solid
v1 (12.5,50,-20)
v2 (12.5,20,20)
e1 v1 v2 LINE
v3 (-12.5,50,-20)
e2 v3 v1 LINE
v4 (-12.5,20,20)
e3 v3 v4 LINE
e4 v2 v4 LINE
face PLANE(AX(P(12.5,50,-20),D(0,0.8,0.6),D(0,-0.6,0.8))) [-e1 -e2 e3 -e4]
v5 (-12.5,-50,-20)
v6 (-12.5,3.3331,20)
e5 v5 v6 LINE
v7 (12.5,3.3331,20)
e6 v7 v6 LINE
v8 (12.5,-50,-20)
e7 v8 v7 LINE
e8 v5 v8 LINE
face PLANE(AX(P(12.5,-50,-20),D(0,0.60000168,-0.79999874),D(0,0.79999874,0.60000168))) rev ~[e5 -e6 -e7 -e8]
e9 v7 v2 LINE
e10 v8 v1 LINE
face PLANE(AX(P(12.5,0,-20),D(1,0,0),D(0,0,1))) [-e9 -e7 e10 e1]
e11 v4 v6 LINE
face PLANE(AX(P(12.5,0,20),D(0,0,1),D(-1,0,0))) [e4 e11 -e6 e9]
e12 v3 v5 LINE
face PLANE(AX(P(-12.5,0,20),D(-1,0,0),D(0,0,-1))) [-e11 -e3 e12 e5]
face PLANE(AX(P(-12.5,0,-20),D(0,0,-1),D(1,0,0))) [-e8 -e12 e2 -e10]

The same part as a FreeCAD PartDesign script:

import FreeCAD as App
import Part
import Sketcher
from FreeCAD import Vector
Q = App.Units.Quantity

doc = App.newDocument("Part")
body = doc.addObject("PartDesign::Body", "Body")

# Sketch on XZ plane
sketch1 = body.newObject("Sketcher::SketchObject", "Sketch")
sketch1.AttachmentSupport = (doc.getObject("XZ_Plane"), [""])
sketch1.MapMode = "FlatFace"
sketch1.addGeometry([
    Part.LineSegment(Vector(-12.5, 20, 0), Vector(12.5, 20, 0)),
    Part.LineSegment(Vector(12.5, 20, 0), Vector(12.5, -20, 0)),
    Part.LineSegment(Vector(12.5, -20, 0), Vector(-12.5, -20, 0)),
    Part.LineSegment(Vector(-12.5, -20, 0), Vector(-12.5, 20, 0)),
], False)
sketch1.addConstraint([
    Sketcher.Constraint("Coincident", 0, 2, 1, 1),
    Sketcher.Constraint("Coincident", 1, 2, 2, 1),
    Sketcher.Constraint("Coincident", 2, 2, 3, 1),
    Sketcher.Constraint("Coincident", 3, 2, 0, 1),
    Sketcher.Constraint("Horizontal", 0),
    Sketcher.Constraint("Vertical", 1),
    Sketcher.Constraint("Horizontal", 2),
    Sketcher.Constraint("Vertical", 3),
    Sketcher.Constraint("Symmetric", 0, 2, 2, 2, -1, 1),
    Sketcher.Constraint("DistanceX", 0, 1, 0, 2, Q("25 mm")),
    Sketcher.Constraint("DistanceY", 1, 2, 1, 1, Q("40 mm")),
])
pad1 = body.newObject("PartDesign::Pad", "Pad")
pad1.Profile = sketch1
pad1.Length = 100
pad1.Midplane = True

# Sketch on YZ plane
sketch2 = body.newObject("Sketcher::SketchObject", "Sketch001")
sketch2.AttachmentSupport = (doc.getObject("YZ_Plane"), [""])
sketch2.MapMode = "FlatFace"
sketch2.AttachmentOffset = App.Placement(Vector(0, 0, 12.5), App.Rotation())
sketch2.addGeometry([
    Part.LineSegment(Vector(20, 20, 0), Vector(50, -20, 0)),
    Part.LineSegment(Vector(50, -20, 0), Vector(50, 20, 0)),
    Part.LineSegment(Vector(50, 20, 0), Vector(20, 20, 0)),
], False)
sketch2.addConstraint([
    Sketcher.Constraint("Coincident", 0, 2, 1, 1),
    Sketcher.Constraint("Coincident", 1, 2, 2, 1),
    Sketcher.Constraint("Coincident", 2, 2, 0, 1),
    Sketcher.Constraint("Vertical", 1),
    Sketcher.Constraint("Horizontal", 2),
    Sketcher.Constraint("Distance", 0, Q("50 mm")),
    Sketcher.Constraint("DistanceX", -1, 1, 0, 2, Q("50 mm")),
    Sketcher.Constraint("DistanceX", 2, 2, 2, 1, Q("30 mm")),
    Sketcher.Constraint("DistanceY", 0, 2, -1, 1, Q("20 mm")),
])
pocket1 = body.newObject("PartDesign::Pocket", "Pocket")
pocket1.Profile = sketch2
pocket1.Length = 25

# Sketch on YZ plane
sketch3 = body.newObject("Sketcher::SketchObject", "Sketch002")
sketch3.AttachmentSupport = (doc.getObject("YZ_Plane"), [""])
sketch3.MapMode = "FlatFace"
sketch3.AttachmentOffset = App.Placement(Vector(0, 0, 12.5), App.Rotation())
sketch3.addGeometry([
    Part.LineSegment(Vector(3.3331, 20, 0), Vector(-50, 20, 0)),
    Part.LineSegment(Vector(-50, 20, 0), Vector(-50, -20, 0)),
    Part.LineSegment(Vector(-50, -20, 0), Vector(3.3331, 20, 0)),
], False)
sketch3.addConstraint([
    Sketcher.Constraint("Coincident", 0, 2, 1, 1),
    Sketcher.Constraint("Coincident", 1, 2, 2, 1),
    Sketcher.Constraint("Coincident", 2, 2, 0, 1),
    Sketcher.Constraint("Horizontal", 0),
    Sketcher.Constraint("Vertical", 1),
    Sketcher.Constraint("Angle", 2, Q("36.87 deg")),
    Sketcher.Constraint("DistanceY", 1, 2, 1, 1, Q("40 mm")),
    Sketcher.Constraint("DistanceX", 0, 2, -1, 1, Q("50 mm")),
    Sketcher.Constraint("DistanceY", -1, 1, 0, 2, Q("20 mm")),
])
pocket2 = body.newObject("PartDesign::Pocket", "Pocket001")
pocket2.Profile = sketch3
pocket2.Length = 25

doc.recompute()
